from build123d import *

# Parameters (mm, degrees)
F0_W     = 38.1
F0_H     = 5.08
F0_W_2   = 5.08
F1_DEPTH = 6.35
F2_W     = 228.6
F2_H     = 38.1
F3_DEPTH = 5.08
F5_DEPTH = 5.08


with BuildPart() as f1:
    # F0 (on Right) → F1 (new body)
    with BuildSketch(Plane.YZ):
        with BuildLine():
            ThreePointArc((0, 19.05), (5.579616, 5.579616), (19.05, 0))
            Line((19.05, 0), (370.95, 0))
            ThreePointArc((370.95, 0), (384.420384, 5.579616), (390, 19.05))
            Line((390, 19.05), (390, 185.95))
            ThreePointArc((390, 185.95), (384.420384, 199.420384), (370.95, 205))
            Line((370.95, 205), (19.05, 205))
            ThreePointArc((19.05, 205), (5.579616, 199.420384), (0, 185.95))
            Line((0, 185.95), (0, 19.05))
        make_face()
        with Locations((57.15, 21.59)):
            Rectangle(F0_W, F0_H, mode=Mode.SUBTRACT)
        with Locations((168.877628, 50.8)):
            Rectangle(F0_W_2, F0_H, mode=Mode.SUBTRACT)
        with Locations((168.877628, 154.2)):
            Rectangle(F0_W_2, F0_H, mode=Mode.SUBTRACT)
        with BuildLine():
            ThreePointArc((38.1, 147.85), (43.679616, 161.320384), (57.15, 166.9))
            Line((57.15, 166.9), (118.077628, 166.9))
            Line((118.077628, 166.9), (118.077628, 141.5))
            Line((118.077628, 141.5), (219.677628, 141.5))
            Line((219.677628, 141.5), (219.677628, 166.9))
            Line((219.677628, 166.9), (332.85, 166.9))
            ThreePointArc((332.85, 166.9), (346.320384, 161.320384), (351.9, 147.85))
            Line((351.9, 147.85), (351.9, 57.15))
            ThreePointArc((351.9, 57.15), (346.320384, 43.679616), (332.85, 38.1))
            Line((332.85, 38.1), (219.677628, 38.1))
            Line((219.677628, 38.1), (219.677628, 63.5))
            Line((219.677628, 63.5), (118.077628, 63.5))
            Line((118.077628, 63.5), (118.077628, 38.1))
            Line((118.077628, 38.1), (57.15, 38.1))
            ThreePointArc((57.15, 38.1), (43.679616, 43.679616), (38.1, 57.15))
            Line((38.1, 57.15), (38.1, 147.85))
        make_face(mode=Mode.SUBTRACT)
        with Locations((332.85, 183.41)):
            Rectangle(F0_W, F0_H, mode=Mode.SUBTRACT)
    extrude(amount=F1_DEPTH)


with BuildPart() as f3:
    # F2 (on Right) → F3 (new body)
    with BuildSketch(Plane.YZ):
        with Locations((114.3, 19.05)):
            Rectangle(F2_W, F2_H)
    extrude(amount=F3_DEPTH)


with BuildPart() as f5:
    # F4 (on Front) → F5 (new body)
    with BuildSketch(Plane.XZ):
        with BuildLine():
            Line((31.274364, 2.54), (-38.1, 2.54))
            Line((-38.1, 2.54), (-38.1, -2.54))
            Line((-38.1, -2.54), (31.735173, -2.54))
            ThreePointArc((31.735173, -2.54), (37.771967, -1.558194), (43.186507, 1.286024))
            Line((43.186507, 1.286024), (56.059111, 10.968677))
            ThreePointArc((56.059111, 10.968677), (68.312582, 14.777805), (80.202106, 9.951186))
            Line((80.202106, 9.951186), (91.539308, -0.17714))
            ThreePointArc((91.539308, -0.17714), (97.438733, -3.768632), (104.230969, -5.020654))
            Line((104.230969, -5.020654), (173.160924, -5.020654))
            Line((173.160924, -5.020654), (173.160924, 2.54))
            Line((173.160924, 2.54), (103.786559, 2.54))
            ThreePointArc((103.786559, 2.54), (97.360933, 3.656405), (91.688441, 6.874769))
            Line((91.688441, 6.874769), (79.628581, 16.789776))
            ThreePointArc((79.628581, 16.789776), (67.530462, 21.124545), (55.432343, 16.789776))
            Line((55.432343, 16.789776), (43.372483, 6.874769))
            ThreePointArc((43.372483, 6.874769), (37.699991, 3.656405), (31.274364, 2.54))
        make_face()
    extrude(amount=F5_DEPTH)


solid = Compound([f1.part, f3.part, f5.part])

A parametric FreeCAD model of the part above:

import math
import FreeCAD as App
import Part
import Sketcher

V = App.Vector
Q = App.Units.Quantity

doc = App.newDocument("Part")
body = doc.addObject("PartDesign::Body", "Body")

sketch1 = body.newObject("Sketcher::SketchObject", "Sketch")
sketch1.AttachmentSupport = (doc.getObject("YZ_Plane"), [""])
sketch1.MapMode = "FlatFace"
sketch1.addGeometry(Part.ArcOfCircle(Part.Circle(V(19.050001, 19.050001, 0), V(0, 0, 1), 19.050001), math.radians(-179.999998), math.radians(-90.000002)), False)
sketch1.addGeometry(Part.LineSegment(V(19.05, 0, 0), V(370.95, 0, 0)), False)
sketch1.addGeometry(Part.ArcOfCircle(Part.Circle(V(370.949999, 19.050001, 0), V(0, 0, 1), 19.050001), math.radians(-89.999998), math.radians(-0.000002)), False)
sketch1.addGeometry(Part.LineSegment(V(390, 19.05, 0), V(390, 185.95, 0)), False)
sketch1.addGeometry(Part.ArcOfCircle(Part.Circle(V(370.949999, 185.949999, 0), V(0, 0, 1), 19.050001), math.radians(0.000002), math.radians(89.999998)), False)
sketch1.addGeometry(Part.LineSegment(V(370.95, 205, 0), V(19.05, 205, 0)), False)
sketch1.addGeometry(Part.ArcOfCircle(Part.Circle(V(19.050001, 185.949999, 0), V(0, 0, 1), 19.050001), math.radians(90.000002), math.radians(179.999998)), False)
sketch1.addGeometry(Part.LineSegment(V(0, 185.95, 0), V(0, 19.05, 0)), False)
sketch1.addGeometry(Part.LineSegment(V(76.2, 19.05, 0), V(38.1, 19.05, 0)), False)
sketch1.addGeometry(Part.LineSegment(V(38.1, 19.05, 0), V(38.1, 24.13, 0)), False)
sketch1.addGeometry(Part.LineSegment(V(38.1, 24.13, 0), V(76.2, 24.13, 0)), False)
sketch1.addGeometry(Part.LineSegment(V(76.2, 24.13, 0), V(76.2, 19.05, 0)), False)
sketch1.addGeometry(Part.LineSegment(V(171.417628, 48.26, 0), V(166.337628, 48.26, 0)), False)
sketch1.addGeometry(Part.LineSegment(V(166.337628, 48.26, 0), V(166.337628, 53.34, 0)), False)
sketch1.addGeometry(Part.LineSegment(V(166.337628, 53.34, 0), V(171.417628, 53.34, 0)), False)
sketch1.addGeometry(Part.LineSegment(V(171.417628, 53.34, 0), V(171.417628, 48.26, 0)), False)
sketch1.addGeometry(Part.LineSegment(V(38.1, 57.15, 0), V(38.1, 147.85, 0)), False)
sketch1.addGeometry(Part.ArcOfCircle(Part.Circle(V(57.150001, 147.849999, 0), V(0, 0, 1), 19.050001), math.radians(90.000002), math.radians(179.999998)), False)
sketch1.addGeometry(Part.LineSegment(V(57.15, 166.9, 0), V(118.077628, 166.9, 0)), False)
sketch1.addGeometry(Part.LineSegment(V(118.077628, 166.9, 0), V(118.077628, 141.5, 0)), False)
sketch1.addGeometry(Part.LineSegment(V(118.077628, 141.5, 0), V(219.677628, 141.5, 0)), False)
sketch1.addGeometry(Part.LineSegment(V(219.677628, 141.5, 0), V(219.677628, 166.9, 0)), False)
sketch1.addGeometry(Part.LineSegment(V(219.677628, 166.9, 0), V(332.85, 166.9, 0)), False)
sketch1.addGeometry(Part.ArcOfCircle(Part.Circle(V(332.849999, 147.849999, 0), V(0, 0, 1), 19.050001), math.radians(0.000002), math.radians(89.999998)), False)
sketch1.addGeometry(Part.LineSegment(V(351.9, 147.85, 0), V(351.9, 57.15, 0)), False)
sketch1.addGeometry(Part.ArcOfCircle(Part.Circle(V(332.849999, 57.150001, 0), V(0, 0, 1), 19.050001), math.radians(-89.999998), math.radians(-0.000002)), False)
sketch1.addGeometry(Part.LineSegment(V(332.85, 38.1, 0), V(219.677628, 38.1, 0)), False)
sketch1.addGeometry(Part.LineSegment(V(219.677628, 38.1, 0), V(219.677628, 63.5, 0)), False)
sketch1.addGeometry(Part.LineSegment(V(219.677628, 63.5, 0), V(118.077628, 63.5, 0)), False)
sketch1.addGeometry(Part.LineSegment(V(118.077628, 63.5, 0), V(118.077628, 38.1, 0)), False)
sketch1.addGeometry(Part.LineSegment(V(118.077628, 38.1, 0), V(57.15, 38.1, 0)), False)
sketch1.addGeometry(Part.ArcOfCircle(Part.Circle(V(57.150001, 57.150001, 0), V(0, 0, 1), 19.050001), math.radians(-179.999998), math.radians(-90.000002)), False)
sketch1.addGeometry(Part.LineSegment(V(171.417628, 151.66, 0), V(166.337628, 151.66, 0)), False)
sketch1.addGeometry(Part.LineSegment(V(166.337628, 151.66, 0), V(166.337628, 156.74, 0)), False)
sketch1.addGeometry(Part.LineSegment(V(166.337628, 156.74, 0), V(171.417628, 156.74, 0)), False)
sketch1.addGeometry(Part.LineSegment(V(171.417628, 156.74, 0), V(171.417628, 151.66, 0)), False)
sketch1.addGeometry(Part.LineSegment(V(351.9, 180.87, 0), V(313.8, 180.87, 0)), False)
sketch1.addGeometry(Part.LineSegment(V(313.8, 180.87, 0), V(313.8, 185.95, 0)), False)
sketch1.addGeometry(Part.LineSegment(V(313.8, 185.95, 0), V(351.9, 185.95, 0)), False)
sketch1.addGeometry(Part.LineSegment(V(351.9, 185.95, 0), V(351.9, 180.87, 0)), False)
sketch1.addConstraint(Sketcher.Constraint("Tangent", 0, 2, 1, 1))
sketch1.addConstraint(Sketcher.Constraint("Tangent", 1, 2, 2, 1))
sketch1.addConstraint(Sketcher.Constraint("Tangent", 2, 2, 3, 1))
sketch1.addConstraint(Sketcher.Constraint("Tangent", 3, 2, 4, 1))
sketch1.addConstraint(Sketcher.Constraint("Tangent", 4, 2, 5, 1))
sketch1.addConstraint(Sketcher.Constraint("Tangent", 5, 2, 6, 1))
sketch1.addConstraint(Sketcher.Constraint("Tangent", 6, 2, 7, 1))
sketch1.addConstraint(Sketcher.Constraint("Tangent", 7, 2, 0, 1))
sketch1.addConstraint(Sketcher.Constraint("Coincident", 8, 2, 9, 1))
sketch1.addConstraint(Sketcher.Constraint("Coincident", 9, 2, 10, 1))
sketch1.addConstraint(Sketcher.Constraint("Coincident", 10, 2, 11, 1))
sketch1.addConstraint(Sketcher.Constraint("Coincident", 11, 2, 8, 1))
sketch1.addConstraint(Sketcher.Constraint("Coincident", 12, 2, 13, 1))
sketch1.addConstraint(Sketcher.Constraint("Coincident", 13, 2, 14, 1))
sketch1.addConstraint(Sketcher.Constraint("Coincident", 14, 2, 15, 1))
sketch1.addConstraint(Sketcher.Constraint("Coincident", 15, 2, 12, 1))
sketch1.addConstraint(Sketcher.Constraint("Tangent", 16, 2, 17, 2))
sketch1.addConstraint(Sketcher.Constraint("Tangent", 17, 1, 18, 1))
sketch1.addConstraint(Sketcher.Constraint("Coincident", 18, 2, 19, 1))
sketch1.addConstraint(Sketcher.Constraint("Coincident", 19, 2, 20, 1))
sketch1.addConstraint(Sketcher.Constraint("Coincident", 20, 2, 21, 1))
sketch1.addConstraint(Sketcher.Constraint("Coincident", 21, 2, 22, 1))
sketch1.addConstraint(Sketcher.Constraint("Tangent", 22, 2, 23, 2))
sketch1.addConstraint(Sketcher.Constraint("Tangent", 23, 1, 24, 1))
sketch1.addConstraint(Sketcher.Constraint("Tangent", 24, 2, 25, 2))
sketch1.addConstraint(Sketcher.Constraint("Tangent", 25, 1, 26, 1))
sketch1.addConstraint(Sketcher.Constraint("Coincident", 26, 2, 27, 1))
sketch1.addConstraint(Sketcher.Constraint("Coincident", 27, 2, 28, 1))
sketch1.addConstraint(Sketcher.Constraint("Coincident", 28, 2, 29, 1))
sketch1.addConstraint(Sketcher.Constraint("Coincident", 29, 2, 30, 1))
sketch1.addConstraint(Sketcher.Constraint("Tangent", 30, 2, 31, 2))
sketch1.addConstraint(Sketcher.Constraint("Tangent", 31, 1, 16, 1))
sketch1.addConstraint(Sketcher.Constraint("Coincident", 32, 2, 33, 1))
sketch1.addConstraint(Sketcher.Constraint("Coincident", 33, 2, 34, 1))
sketch1.addConstraint(Sketcher.Constraint("Coincident", 34, 2, 35, 1))
sketch1.addConstraint(Sketcher.Constraint("Coincident", 35, 2, 32, 1))
sketch1.addConstraint(Sketcher.Constraint("Coincident", 36, 2, 37, 1))
sketch1.addConstraint(Sketcher.Constraint("Coincident", 37, 2, 38, 1))
sketch1.addConstraint(Sketcher.Constraint("Coincident", 38, 2, 39, 1))
sketch1.addConstraint(Sketcher.Constraint("Coincident", 39, 2, 36, 1))
sketch1.addConstraint(Sketcher.Constraint("Horizontal", 1))
sketch1.addConstraint(Sketcher.Constraint("Vertical", 3))
sketch1.addConstraint(Sketcher.Constraint("Horizontal", 5))
sketch1.addConstraint(Sketcher.Constraint("Vertical", 7))
sketch1.addConstraint(Sketcher.Constraint("Horizontal", 8))
sketch1.addConstraint(Sketcher.Constraint("Vertical", 9))
sketch1.addConstraint(Sketcher.Constraint("Horizontal", 10))
sketch1.addConstraint(Sketcher.Constraint("Vertical", 11))
sketch1.addConstraint(Sketcher.Constraint("Horizontal", 12))
sketch1.addConstraint(Sketcher.Constraint("Vertical", 13))
sketch1.addConstraint(Sketcher.Constraint("Horizontal", 14))
sketch1.addConstraint(Sketcher.Constraint("Vertical", 15))
sketch1.addConstraint(Sketcher.Constraint("Vertical", 16))
sketch1.addConstraint(Sketcher.Constraint("Horizontal", 18))
sketch1.addConstraint(Sketcher.Constraint("Vertical", 19))
sketch1.addConstraint(Sketcher.Constraint("Horizontal", 20))
sketch1.addConstraint(Sketcher.Constraint("Vertical", 21))
sketch1.addConstraint(Sketcher.Constraint("Horizontal", 22))
sketch1.addConstraint(Sketcher.Constraint("Vertical", 24))
sketch1.addConstraint(Sketcher.Constraint("Horizontal", 26))
sketch1.addConstraint(Sketcher.Constraint("Vertical", 27))
sketch1.addConstraint(Sketcher.Constraint("Horizontal", 28))
sketch1.addConstraint(Sketcher.Constraint("Vertical", 29))
sketch1.addConstraint(Sketcher.Constraint("Horizontal", 30))
sketch1.addConstraint(Sketcher.Constraint("Horizontal", 32))
sketch1.addConstraint(Sketcher.Constraint("Vertical", 33))
sketch1.addConstraint(Sketcher.Constraint("Horizontal", 34))
sketch1.addConstraint(Sketcher.Constraint("Vertical", 35))
sketch1.addConstraint(Sketcher.Constraint("Horizontal", 36))
sketch1.addConstraint(Sketcher.Constraint("Vertical", 37))
sketch1.addConstraint(Sketcher.Constraint("Horizontal", 38))
sketch1.addConstraint(Sketcher.Constraint("Vertical", 39))
sketch1.addConstraint(Sketcher.Constraint("Equal", 0, 2))
sketch1.addConstraint(Sketcher.Constraint("Equal", 2, 4))
sketch1.addConstraint(Sketcher.Constraint("Equal", 4, 6))
sketch1.addConstraint(Sketcher.Constraint("Equal", 6, 17))
sketch1.addConstraint(Sketcher.Constraint("Equal", 17, 23))
sketch1.addConstraint(Sketcher.Constraint("Equal", 23, 25))
sketch1.addConstraint(Sketcher.Constraint("Equal", 25, 31))
sketch1.addConstraint(Sketcher.Constraint("PointOnObject", 0, 2, -1))
sketch1.addConstraint(Sketcher.Constraint("PointOnObject", 6, 2, -2))
sketch1.addConstraint(Sketcher.Constraint("Horizontal", 17, 3, 23, 3))
sketch1.addConstraint(Sketcher.Constraint("Horizontal", 25, 3, 31, 3))
sketch1.addConstraint(Sketcher.Constraint("Horizontal", 7, 2, 8, 2))
sketch1.addConstraint(Sketcher.Constraint("Horizontal", 6, 2, 37, 2))
sketch1.addConstraint(Sketcher.Constraint("Vertical", 9, 2, 16, 2))
sketch1.addConstraint(Sketcher.Constraint("Vertical", 21, 2, 26, 2))
sketch1.addConstraint(Sketcher.Constraint("Vertical", 19, 2, 28, 2))
sketch1.addConstraint(Sketcher.Constraint("Vertical", 13, 2, 32, 2))
sketch1.addConstraint(Sketcher.Constraint("Vertical", 15, 2, 34, 2))
sketch1.addConstraint(Sketcher.Constraint("Vertical", 24, 2, 38, 2))
sketch1.addConstraint(Sketcher.Constraint("Equal", 10, 36))
sketch1.addConstraint(Sketcher.Constraint("Equal", 34, 9))
sketch1.addConstraint(Sketcher.Constraint("Equal", 11, 13))
sketch1.addConstraint(Sketcher.Constraint("Equal", 21, 27))
sketch1.addConstraint(Sketcher.Constraint("Equal", 15, 33))
sketch1.addConstraint(Sketcher.Constraint("Equal", 35, 37))
sketch1.addConstraint(Sketcher.Constraint("DistanceX", 20, 1, 20, 2, Q("4 in")))
sketch1.addConstraint(Sketcher.Constraint("DistanceY", 19, 2, 19, 1, Q("1 in")))
sketch1.addConstraint(Sketcher.Constraint("Radius", 0, Q("0.75 in")))
sketch1.addConstraint(Sketcher.Constraint("DistanceX", 8, 2, 8, 1, Q("1.5 in")))
sketch1.addConstraint(Sketcher.Constraint("DistanceX", 12, 2, 12, 1, Q("0.2 in")))
sketch1.addConstraint(Sketcher.Constraint("DistanceX", -1, 1, 10, 2, Q("3 in")))
sketch1.addConstraint(Sketcher.Constraint("DistanceY", -1, 1, 12, 2, Q("1.9 in")))
sketch1.addConstraint(Sketcher.Constraint("DistanceY", -1, 1, 25, 1, Q("1.5 in")))
sketch1.addConstraint(Sketcher.Constraint("DistanceY", 17, 3, 6, 3, Q("1.5 in")))
sketch1.addConstraint(Sketcher.Constraint("DistanceX", 23, 3, 4, 3, Q("1.5 in")))
sketch1.addConstraint(Sketcher.Constraint("DistanceX", 19, 2, 13, 2, Q("1.9 in")))
sketch1.addConstraint(Sketcher.Constraint("DistanceY", 19, 2, 32, 2, Q("0.4 in")))
sketch1.addConstraint(Sketcher.Constraint("DistanceX", 1, 1, 1, 2, Q("351.9 mm")))
sketch1.addConstraint(Sketcher.Constraint("DistanceY", 3, 1, 3, 2, Q("166.9 mm")))
sketch1.addConstraint(Sketcher.Constraint("DistanceX", 18, 1, 18, 2, Q("60.927628 mm")))
pad1 = body.newObject("PartDesign::Pad", "Pad")
pad1.Profile = sketch1
pad1.Length = Q("0.25 in")
body2 = doc.addObject("PartDesign::Body", "Body001")

sketch2 = body2.newObject("Sketcher::SketchObject", "Sketch001")
sketch2.AttachmentSupport = (doc.getObject("YZ_Plane001"), [""])
sketch2.MapMode = "FlatFace"
sketch2.addGeometry(Part.LineSegment(V(0, 38.1, 0), V(0, 0, 0)), False)
sketch2.addGeometry(Part.LineSegment(V(0, 0, 0), V(228.6, 0, 0)), False)
sketch2.addGeometry(Part.LineSegment(V(228.6, 0, 0), V(228.6, 38.1, 0)), False)
sketch2.addGeometry(Part.LineSegment(V(228.6, 38.1, 0), V(0, 38.1, 0)), False)
sketch2.addConstraint(Sketcher.Constraint("Coincident", 0, 2, 1, 1))
sketch2.addConstraint(Sketcher.Constraint("Coincident", 1, 2, 2, 1))
sketch2.addConstraint(Sketcher.Constraint("Coincident", 2, 2, 3, 1))
sketch2.addConstraint(Sketcher.Constraint("Coincident", 3, 2, 0, 1))
sketch2.addConstraint(Sketcher.Constraint("Vertical", 0))
sketch2.addConstraint(Sketcher.Constraint("Horizontal", 1))
sketch2.addConstraint(Sketcher.Constraint("Vertical", 2))
sketch2.addConstraint(Sketcher.Constraint("Horizontal", 3))
sketch2.addConstraint(Sketcher.Constraint("Coincident", 0, 2, -1, 1))
sketch2.addConstraint(Sketcher.Constraint("DistanceX", 1, 1, 1, 2, Q("9 in")))
sketch2.addConstraint(Sketcher.Constraint("DistanceY", 0, 2, 0, 1, Q("1.5 in")))
pad2 = body2.newObject("PartDesign::Pad", "Pad001")
pad2.Profile = sketch2
pad2.Length = Q("0.2 in")
body3 = doc.addObject("PartDesign::Body", "Body002")

sketch3 = body3.newObject("Sketcher::SketchObject", "Sketch002")
sketch3.AttachmentSupport = (doc.getObject("XZ_Plane002"), [""])
sketch3.MapMode = "FlatFace"
sketch3.addGeometry(Part.LineSegment(V(31.274364, 2.54, 0), V(-38.1, 2.54, 0)), False)
sketch3.addGeometry(Part.LineSegment(V(-38.1, 2.54, 0), V(-38.1, -2.54, 0)), False)
sketch3.addGeometry(Part.LineSegment(V(-38.1, -2.54, 0), V(31.735173, -2.54, 0)), False)
sketch3.addGeometry(Part.ArcOfCircle(Part.Circle(V(31.735176, 16.509991, 0), V(0, 0, 1), 19.049991), math.radians(-90.000008), math.radians(-53.049844)), False)
sketch3.addGeometry(Part.LineSegment(V(43.186507, 1.286024, 0), V(56.059111, 10.968677, 0)), False)
sketch3.addGeometry(Part.ArcOfCircle(Part.Circle(V(67.510445, -4.255301, 0), V(0, 0, 1), 19.050001), math.radians(48.223326), math.radians(126.950143)), False)
sketch3.addGeometry(Part.LineSegment(V(80.202106, 9.951186, 0), V(91.539308, -0.17714, 0)), False)
sketch3.addGeometry(Part.ArcOfCircle(Part.Circle(V(104.23097, 14.02935, 0), V(0, 0, 1), 19.050004), math.radians(-131.776669), math.radians(-90.000004)), False)
sketch3.addGeometry(Part.LineSegment(V(104.230969, -5.020654, 0), V(173.160924, -5.020654, 0)), False)
sketch3.addGeometry(Part.LineSegment(V(173.160924, -5.020654, 0), V(173.160924, 2.54, 0)), False)
sketch3.addGeometry(Part.LineSegment(V(173.160924, 2.54, 0), V(103.786559, 2.54, 0)), False)
sketch3.addGeometry(Part.ArcOfCircle(Part.Circle(V(103.786558, 21.589996, 0), V(0, 0, 1), 19.049996), math.radians(-129.425317), math.radians(-89.999998)), False)
sketch3.addGeometry(Part.LineSegment(V(91.688441, 6.874769, 0), V(79.628581, 16.789776, 0)), False)
sketch3.addGeometry(Part.ArcOfCircle(Part.Circle(V(67.530462, 2.074544, 0), V(0, 0, 1), 19.050001), math.radians(50.574687), math.radians(129.425313)), False)
sketch3.addGeometry(Part.LineSegment(V(55.432343, 16.789776, 0), V(43.372483, 6.874769, 0)), False)
sketch3.addGeometry(Part.ArcOfCircle(Part.Circle(V(31.274366, 21.589996, 0), V(0, 0, 1), 19.049996), math.radians(-90.000005), math.radians(-50.574683)), False)
sketch3.addConstraint(Sketcher.Constraint("Coincident", 0, 2, 1, 1))
sketch3.addConstraint(Sketcher.Constraint("Coincident", 1, 2, 2, 1))
sketch3.addConstraint(Sketcher.Constraint("Tangent", 2, 2, 3, 1))
sketch3.addConstraint(Sketcher.Constraint("Tangent", 3, 2, 4, 1))
sketch3.addConstraint(Sketcher.Constraint("Tangent", 4, 2, 5, 2))
sketch3.addConstraint(Sketcher.Constraint("Tangent", 5, 1, 6, 1))
sketch3.addConstraint(Sketcher.Constraint("Tangent", 6, 2, 7, 1))
sketch3.addConstraint(Sketcher.Constraint("Tangent", 7, 2, 8, 1))
sketch3.addConstraint(Sketcher.Constraint("Coincident", 8, 2, 9, 1))
sketch3.addConstraint(Sketcher.Constraint("Coincident", 9, 2, 10, 1))
sketch3.addConstraint(Sketcher.Constraint("Tangent", 10, 2, 11, 2))
sketch3.addConstraint(Sketcher.Constraint("Tangent", 11, 1, 12, 1))
sketch3.addConstraint(Sketcher.Constraint("Tangent", 12, 2, 13, 1))
sketch3.addConstraint(Sketcher.Constraint("Tangent", 13, 2, 14, 1))
sketch3.addConstraint(Sketcher.Constraint("Tangent", 14, 2, 15, 2))
sketch3.addConstraint(Sketcher.Constraint("Tangent", 15, 1, 0, 1))
sketch3.addConstraint(Sketcher.Constraint("Horizontal", 0))
sketch3.addConstraint(Sketcher.Constraint("Vertical", 1))
sketch3.addConstraint(Sketcher.Constraint("Horizontal", 2))
sketch3.addConstraint(Sketcher.Constraint("Horizontal", 8))
sketch3.addConstraint(Sketcher.Constraint("Vertical", 9))
sketch3.addConstraint(Sketcher.Constraint("Horizontal", 10))
sketch3.addConstraint(Sketcher.Constraint("Equal", 5, 13))
sketch3.addConstraint(Sketcher.Constraint("Equal", 11, 15))
sketch3.addConstraint(Sketcher.Constraint("Horizontal", 11, 3, 15, 3))
sketch3.addConstraint(Sketcher.Constraint("Horizontal", 12, 2, 13, 2))
sketch3.addConstraint(Sketcher.Constraint("Equal", 0, 10))
sketch3.addConstraint(Sketcher.Constraint("Radius", 5, Q("0.75 in")))
sketch3.addConstraint(Sketcher.Constraint("Radius", 7, Q("0.7500002 in")))
sketch3.addConstraint(Sketcher.Constraint("Radius", 11, Q("0.7499999 in")))
sketch3.addConstraint(Sketcher.Constraint("DistanceY", 1, 2, 1, 1, Q("0.2 in")))
sketch3.addConstraint(Sketcher.Constraint("DistanceX", 0, 2, -1, 1, Q("1.5 in")))
sketch3.addConstraint(Sketcher.Constraint("DistanceY", -1, 1, 0, 2, Q("0.1 in")))
sketch3.addConstraint(Sketcher.Constraint("Radius", 3, Q("19.049991 mm")))
sketch3.addConstraint(Sketcher.Constraint("DistanceY", 5, 3, -1, 1, Q("4.255301 mm")))
sketch3.addConstraint(Sketcher.Constraint("DistanceX", 5, 1, 6, 2, Q("11.337202 mm")))
sketch3.addConstraint(Sketcher.Constraint("DistanceY", 4, 2, 12, 2, Q("5.821099 mm")))
sketch3.addConstraint(Sketcher.Constraint("Distance", 4, Q("16.107691 mm")))
sketch3.addConstraint(Sketcher.Constraint("Distance", 6, Q("15.202471 mm")))
sketch3.addConstraint(Sketcher.Constraint("DistanceX", 0, 2, 0, 1, Q("69.374364 mm")))
sketch3.addConstraint(Sketcher.Constraint("DistanceX", 2, 1, 2, 2, Q("69.835173 mm")))
sketch3.addConstraint(Sketcher.Constraint("DistanceX", 8, 1, 8, 2, Q("68.929955 mm")))
pad3 = body3.newObject("PartDesign::Pad", "Pad002")
pad3.Profile = sketch3
pad3.Length = Q("0.2 in")

doc.recompute()
